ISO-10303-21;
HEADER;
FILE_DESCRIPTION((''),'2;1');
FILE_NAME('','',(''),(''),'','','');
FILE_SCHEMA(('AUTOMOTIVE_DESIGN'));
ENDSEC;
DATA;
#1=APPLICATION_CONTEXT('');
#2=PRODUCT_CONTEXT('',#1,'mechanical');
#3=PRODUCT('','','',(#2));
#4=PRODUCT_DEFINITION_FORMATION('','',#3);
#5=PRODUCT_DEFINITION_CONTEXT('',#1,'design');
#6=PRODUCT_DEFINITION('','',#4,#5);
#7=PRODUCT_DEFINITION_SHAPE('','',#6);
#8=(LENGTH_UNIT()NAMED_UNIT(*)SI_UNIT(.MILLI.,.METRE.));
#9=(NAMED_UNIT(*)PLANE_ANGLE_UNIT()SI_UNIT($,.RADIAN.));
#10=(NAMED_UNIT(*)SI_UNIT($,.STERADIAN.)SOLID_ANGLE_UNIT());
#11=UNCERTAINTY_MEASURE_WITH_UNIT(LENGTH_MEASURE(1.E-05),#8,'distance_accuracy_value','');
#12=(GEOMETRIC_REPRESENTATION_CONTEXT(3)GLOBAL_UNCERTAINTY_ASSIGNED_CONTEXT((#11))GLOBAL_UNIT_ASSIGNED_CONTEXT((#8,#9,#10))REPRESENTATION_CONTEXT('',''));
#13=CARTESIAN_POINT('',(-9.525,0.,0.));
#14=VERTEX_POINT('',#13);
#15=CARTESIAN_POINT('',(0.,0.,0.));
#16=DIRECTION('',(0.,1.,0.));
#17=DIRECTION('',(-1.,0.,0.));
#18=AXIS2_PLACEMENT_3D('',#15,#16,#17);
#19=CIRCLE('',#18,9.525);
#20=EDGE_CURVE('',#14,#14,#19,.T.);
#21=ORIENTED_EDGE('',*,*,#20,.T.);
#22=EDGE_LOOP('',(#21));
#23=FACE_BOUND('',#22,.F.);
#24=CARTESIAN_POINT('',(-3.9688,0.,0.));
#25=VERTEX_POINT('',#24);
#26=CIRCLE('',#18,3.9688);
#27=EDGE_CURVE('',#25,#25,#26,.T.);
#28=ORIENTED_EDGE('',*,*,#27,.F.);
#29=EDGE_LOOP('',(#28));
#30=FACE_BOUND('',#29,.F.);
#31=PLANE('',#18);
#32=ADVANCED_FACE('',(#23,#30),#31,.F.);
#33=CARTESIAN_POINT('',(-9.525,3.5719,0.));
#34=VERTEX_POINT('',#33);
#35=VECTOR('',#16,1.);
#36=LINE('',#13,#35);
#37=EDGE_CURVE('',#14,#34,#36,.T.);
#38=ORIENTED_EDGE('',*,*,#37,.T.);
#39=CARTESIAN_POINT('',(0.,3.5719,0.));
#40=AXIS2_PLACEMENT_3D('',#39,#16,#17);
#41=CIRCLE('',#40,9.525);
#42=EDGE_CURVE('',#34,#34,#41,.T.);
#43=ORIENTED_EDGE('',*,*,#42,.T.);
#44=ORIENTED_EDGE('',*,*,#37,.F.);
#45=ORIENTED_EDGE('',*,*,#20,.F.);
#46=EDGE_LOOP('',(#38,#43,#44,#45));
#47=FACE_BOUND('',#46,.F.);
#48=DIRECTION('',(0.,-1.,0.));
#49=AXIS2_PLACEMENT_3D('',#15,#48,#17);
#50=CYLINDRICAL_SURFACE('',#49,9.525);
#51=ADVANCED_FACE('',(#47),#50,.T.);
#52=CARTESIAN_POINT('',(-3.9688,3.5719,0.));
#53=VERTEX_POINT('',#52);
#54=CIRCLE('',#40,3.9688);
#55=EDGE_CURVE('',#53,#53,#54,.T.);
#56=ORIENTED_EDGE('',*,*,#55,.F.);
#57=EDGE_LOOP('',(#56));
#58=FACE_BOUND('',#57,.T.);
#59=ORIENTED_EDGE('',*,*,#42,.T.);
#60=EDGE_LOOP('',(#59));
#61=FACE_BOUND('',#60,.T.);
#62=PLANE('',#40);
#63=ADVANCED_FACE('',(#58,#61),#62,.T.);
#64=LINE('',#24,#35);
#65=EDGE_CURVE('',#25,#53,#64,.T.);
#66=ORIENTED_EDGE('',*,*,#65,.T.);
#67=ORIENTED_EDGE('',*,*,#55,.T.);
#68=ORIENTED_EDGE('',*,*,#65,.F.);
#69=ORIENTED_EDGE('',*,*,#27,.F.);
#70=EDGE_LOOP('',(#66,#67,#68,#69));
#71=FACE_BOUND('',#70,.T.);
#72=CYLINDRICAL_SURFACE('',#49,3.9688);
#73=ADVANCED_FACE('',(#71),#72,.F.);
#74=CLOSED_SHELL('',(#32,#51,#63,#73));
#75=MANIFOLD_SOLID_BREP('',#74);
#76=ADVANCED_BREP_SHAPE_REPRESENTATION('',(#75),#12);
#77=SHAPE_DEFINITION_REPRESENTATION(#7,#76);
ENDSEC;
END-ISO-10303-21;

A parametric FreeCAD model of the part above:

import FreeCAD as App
import Part
import Sketcher
from FreeCAD import Vector
Q = App.Units.Quantity

doc = App.newDocument("Part")
body = doc.addObject("PartDesign::Body", "Body")

# Sketch on XZ plane
sketch1 = doc.addObject("Sketcher::SketchObject", "Sketch")
body.addObject(sketch1)
sketch1.AttachmentSupport = (doc.XZ_Plane, [""])
sketch1.MapMode = "FlatFace"
sketch1.addGeometry(Part.Circle(Vector(0, 0, 0), Vector(0, 0, 1), 9.5), False)
sketch1.addGeometry(Part.Circle(Vector(0, 0, 0), Vector(0, 0, 1), 4), False)
sketch1.addConstraint(Sketcher.Constraint("Coincident", 0, 3, -1, 1))
sketch1.addConstraint(Sketcher.Constraint("Coincident", 1, 3, -1, 1))
sketch1.addConstraint(Sketcher.Constraint("Diameter", 0, Q("0.75 in")))
sketch1.addConstraint(Sketcher.Constraint("Diameter", 1, Q("0.3125 in")))
pad1 = doc.addObject("PartDesign::Pad", "Pad")
body.addObject(pad1)
pad1.Profile = sketch1
pad1.Length = Q("0.140626 in")
pad1.Reversed = True

doc.recompute()
